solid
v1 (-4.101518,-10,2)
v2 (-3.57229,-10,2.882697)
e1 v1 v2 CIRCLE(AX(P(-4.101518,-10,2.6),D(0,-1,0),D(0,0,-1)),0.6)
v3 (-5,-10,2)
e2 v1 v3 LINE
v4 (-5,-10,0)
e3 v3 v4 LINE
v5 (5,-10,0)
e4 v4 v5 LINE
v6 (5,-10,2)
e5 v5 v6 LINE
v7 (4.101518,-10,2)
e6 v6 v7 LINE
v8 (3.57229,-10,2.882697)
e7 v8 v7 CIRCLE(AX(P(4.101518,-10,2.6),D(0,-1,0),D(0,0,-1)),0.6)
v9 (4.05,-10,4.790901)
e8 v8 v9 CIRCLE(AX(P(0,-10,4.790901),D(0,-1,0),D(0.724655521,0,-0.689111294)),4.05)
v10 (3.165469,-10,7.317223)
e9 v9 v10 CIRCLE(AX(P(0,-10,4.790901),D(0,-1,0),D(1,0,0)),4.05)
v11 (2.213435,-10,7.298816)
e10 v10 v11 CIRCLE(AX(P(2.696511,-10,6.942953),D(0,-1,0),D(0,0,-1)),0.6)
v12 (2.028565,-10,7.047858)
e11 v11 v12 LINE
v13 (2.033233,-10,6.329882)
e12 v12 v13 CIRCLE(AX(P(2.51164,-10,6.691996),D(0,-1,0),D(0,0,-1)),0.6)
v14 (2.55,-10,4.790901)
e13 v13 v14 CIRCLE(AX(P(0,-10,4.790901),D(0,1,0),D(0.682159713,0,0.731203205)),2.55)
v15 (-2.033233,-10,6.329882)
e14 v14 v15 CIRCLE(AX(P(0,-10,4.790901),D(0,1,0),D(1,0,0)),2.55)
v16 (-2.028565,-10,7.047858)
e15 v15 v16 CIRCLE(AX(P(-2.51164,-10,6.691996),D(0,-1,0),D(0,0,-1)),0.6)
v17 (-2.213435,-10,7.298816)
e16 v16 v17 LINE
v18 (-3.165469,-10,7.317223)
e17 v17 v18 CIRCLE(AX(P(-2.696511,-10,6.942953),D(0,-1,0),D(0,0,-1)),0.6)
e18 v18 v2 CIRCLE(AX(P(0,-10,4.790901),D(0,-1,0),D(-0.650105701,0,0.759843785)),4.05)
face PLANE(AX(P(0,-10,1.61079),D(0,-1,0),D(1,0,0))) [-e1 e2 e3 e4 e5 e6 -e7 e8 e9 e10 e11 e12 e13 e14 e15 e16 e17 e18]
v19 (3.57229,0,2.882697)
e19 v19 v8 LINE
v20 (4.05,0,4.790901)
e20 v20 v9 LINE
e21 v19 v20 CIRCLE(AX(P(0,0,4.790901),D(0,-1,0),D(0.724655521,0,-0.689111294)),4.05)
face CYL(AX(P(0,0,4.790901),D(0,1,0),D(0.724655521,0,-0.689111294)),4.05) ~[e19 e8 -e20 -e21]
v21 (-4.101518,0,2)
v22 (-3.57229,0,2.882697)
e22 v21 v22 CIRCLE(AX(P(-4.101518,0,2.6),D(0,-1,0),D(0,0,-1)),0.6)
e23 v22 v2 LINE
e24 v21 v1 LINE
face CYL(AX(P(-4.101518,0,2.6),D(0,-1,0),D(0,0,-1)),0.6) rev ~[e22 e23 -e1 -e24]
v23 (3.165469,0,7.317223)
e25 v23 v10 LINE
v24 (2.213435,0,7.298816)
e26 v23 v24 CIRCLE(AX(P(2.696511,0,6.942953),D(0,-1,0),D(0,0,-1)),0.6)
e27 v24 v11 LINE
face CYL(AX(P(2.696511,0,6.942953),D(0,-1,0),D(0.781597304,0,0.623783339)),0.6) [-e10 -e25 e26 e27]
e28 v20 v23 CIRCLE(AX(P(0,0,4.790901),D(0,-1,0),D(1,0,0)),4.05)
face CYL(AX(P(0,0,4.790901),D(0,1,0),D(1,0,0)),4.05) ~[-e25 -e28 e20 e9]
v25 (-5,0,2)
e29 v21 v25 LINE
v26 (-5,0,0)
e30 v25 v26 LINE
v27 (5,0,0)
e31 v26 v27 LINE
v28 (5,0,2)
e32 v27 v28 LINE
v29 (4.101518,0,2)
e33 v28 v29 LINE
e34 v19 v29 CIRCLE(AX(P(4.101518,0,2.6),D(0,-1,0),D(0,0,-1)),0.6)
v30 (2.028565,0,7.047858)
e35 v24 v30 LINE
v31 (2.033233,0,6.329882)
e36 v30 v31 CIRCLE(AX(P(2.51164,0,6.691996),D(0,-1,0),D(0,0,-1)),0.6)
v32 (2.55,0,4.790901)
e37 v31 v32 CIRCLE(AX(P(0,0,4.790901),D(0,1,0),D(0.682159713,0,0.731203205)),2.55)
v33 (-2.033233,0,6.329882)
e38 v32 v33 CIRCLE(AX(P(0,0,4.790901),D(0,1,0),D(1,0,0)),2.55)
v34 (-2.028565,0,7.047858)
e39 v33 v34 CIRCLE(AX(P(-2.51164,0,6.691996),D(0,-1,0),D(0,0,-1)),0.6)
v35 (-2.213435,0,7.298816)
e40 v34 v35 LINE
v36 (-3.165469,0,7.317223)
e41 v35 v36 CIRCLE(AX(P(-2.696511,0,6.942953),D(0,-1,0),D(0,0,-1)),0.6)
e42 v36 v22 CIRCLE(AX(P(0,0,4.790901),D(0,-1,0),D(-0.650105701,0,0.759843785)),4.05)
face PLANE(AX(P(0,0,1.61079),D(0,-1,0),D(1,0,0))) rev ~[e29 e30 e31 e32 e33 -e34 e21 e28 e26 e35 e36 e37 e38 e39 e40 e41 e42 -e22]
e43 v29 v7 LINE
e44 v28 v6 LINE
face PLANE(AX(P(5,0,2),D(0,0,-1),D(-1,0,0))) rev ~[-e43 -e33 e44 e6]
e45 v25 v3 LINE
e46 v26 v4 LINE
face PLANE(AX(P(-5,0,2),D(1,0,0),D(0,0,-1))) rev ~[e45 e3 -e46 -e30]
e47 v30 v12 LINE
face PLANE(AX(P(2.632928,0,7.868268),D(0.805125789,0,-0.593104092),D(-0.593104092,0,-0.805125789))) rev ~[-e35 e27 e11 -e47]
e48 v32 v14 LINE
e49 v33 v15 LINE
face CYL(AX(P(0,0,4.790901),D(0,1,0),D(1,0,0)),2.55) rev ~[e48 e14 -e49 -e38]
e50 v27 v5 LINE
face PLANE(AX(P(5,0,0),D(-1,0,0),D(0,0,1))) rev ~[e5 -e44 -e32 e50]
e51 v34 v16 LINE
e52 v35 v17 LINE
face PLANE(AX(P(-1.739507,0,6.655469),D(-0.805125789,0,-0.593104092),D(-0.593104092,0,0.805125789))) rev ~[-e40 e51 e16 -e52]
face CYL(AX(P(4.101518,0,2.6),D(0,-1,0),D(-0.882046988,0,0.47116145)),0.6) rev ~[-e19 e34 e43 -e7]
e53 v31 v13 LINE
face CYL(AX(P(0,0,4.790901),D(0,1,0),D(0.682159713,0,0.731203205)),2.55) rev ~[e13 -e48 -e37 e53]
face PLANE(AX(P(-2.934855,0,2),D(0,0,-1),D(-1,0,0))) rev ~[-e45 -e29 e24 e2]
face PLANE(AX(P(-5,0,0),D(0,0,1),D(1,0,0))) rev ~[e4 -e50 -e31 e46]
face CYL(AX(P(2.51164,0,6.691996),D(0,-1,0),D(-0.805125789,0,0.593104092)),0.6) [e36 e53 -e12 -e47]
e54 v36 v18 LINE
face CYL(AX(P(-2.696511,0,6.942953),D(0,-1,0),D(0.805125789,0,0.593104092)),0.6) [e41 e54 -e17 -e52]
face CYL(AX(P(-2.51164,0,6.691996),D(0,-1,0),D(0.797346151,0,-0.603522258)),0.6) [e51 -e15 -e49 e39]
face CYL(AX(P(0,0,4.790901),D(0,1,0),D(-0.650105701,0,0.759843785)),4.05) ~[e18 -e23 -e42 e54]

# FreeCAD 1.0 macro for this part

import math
import FreeCAD as App
import Part
import Sketcher

V = App.Vector


def edges_at(feature, points):
    """Names of the edges that pass closest to the given points."""
    edges = feature.Shape.Edges
    near = lambda p: min(range(len(edges)), key=lambda i: edges[i].distToShape(Part.Vertex(*p))[0])
    return sorted({f"Edge{near(p) + 1}" for p in points})

doc = App.newDocument("Part")
params = doc.addObject("Spreadsheet::Sheet", "Params")
for row, (alias, value) in enumerate([
    ("sketch1_width", "10 mm"),
    ("sketch1_height", "2 mm"),
    ("sketch1_radius", "4.05 mm"),
    ("sketch1_radius2", "2.55 mm"),
    ("pad1_length", "10 mm"),
    ("fillet_radius", "0.6 mm"),
    ("fillet2_radius", "0.6 mm"),
], start=1):
    params.set(f"A{row}", alias)
    params.set(f"B{row}", "=" + value)
    params.setAlias(f"B{row}", alias)

body = doc.addObject("PartDesign::Body", "Body")

sketch1 = body.newObject("Sketcher::SketchObject", "Sketch")
sketch1.AttachmentSupport = (doc.getObject("XZ_Plane"), [""])
sketch1.MapMode = "FlatFace"
sketch1.addGeometry(Part.LineSegment(V(-5, 2, 0), V(-5, 0, 0)), False)
sketch1.addGeometry(Part.LineSegment(V(-5, 0, 0), V(5, 0, 0)), False)
sketch1.addGeometry(Part.LineSegment(V(5, 0, 0), V(5, 2, 0)), False)
sketch1.addGeometry(Part.LineSegment(V(5, 2, 0), V(2.9, 2, 0)), False)
sketch1.addGeometry(Part.ArcOfCircle(Part.Circle(V(0, 4.8, 0), V(0, 0, 1), 4), math.radians(-44), math.radians(0)), False)
sketch1.addGeometry(Part.ArcOfCircle(Part.Circle(V(0, 4.8, 0), V(0, 0, 1), 4), math.radians(0), math.radians(49)), False)
sketch1.addGeometry(Part.LineSegment(V(2.6, 7.9, 0), V(1.7, 6.7, 0)), False)
sketch1.addGeometry(Part.ArcOfCircle(Part.Circle(V(0, 4.8, 0), V(0, 0, 1), 2.5), math.radians(0), math.radians(47)), False)
sketch1.addGeometry(Part.ArcOfCircle(Part.Circle(V(0, 4.8, 0), V(0, 0, 1), 2.5), math.radians(133), math.radians(360)), False)
sketch1.addGeometry(Part.LineSegment(V(-1.7, 6.7, 0), V(-2.6, 7.9, 0)), False)
sketch1.addGeometry(Part.ArcOfCircle(Part.Circle(V(0, 4.8, 0), V(0, 0, 1), 4), math.radians(131), math.radians(224)), False)
sketch1.addGeometry(Part.LineSegment(V(-2.9, 2, 0), V(-5, 2, 0)), False)
sketch1.addConstraint(Sketcher.Constraint("Coincident", 0, 2, 1, 1))
sketch1.addConstraint(Sketcher.Constraint("Coincident", 1, 2, 2, 1))
sketch1.addConstraint(Sketcher.Constraint("Coincident", 2, 2, 3, 1))
sketch1.addConstraint(Sketcher.Constraint("Coincident", 3, 2, 4, 1))
sketch1.addConstraint(Sketcher.Constraint("Tangent", 4, 2, 5, 1))
sketch1.addConstraint(Sketcher.Constraint("Coincident", 5, 2, 6, 1))
sketch1.addConstraint(Sketcher.Constraint("Coincident", 6, 2, 7, 2))
sketch1.addConstraint(Sketcher.Constraint("Tangent", 7, 1, 8, 2))
sketch1.addConstraint(Sketcher.Constraint("Coincident", 8, 1, 9, 1))
sketch1.addConstraint(Sketcher.Constraint("Coincident", 9, 2, 10, 1))
sketch1.addConstraint(Sketcher.Constraint("Coincident", 10, 2, 11, 1))
sketch1.addConstraint(Sketcher.Constraint("Coincident", 11, 2, 0, 1))
sketch1.addConstraint(Sketcher.Constraint("Vertical", 0))
sketch1.addConstraint(Sketcher.Constraint("Horizontal", 1))
sketch1.addConstraint(Sketcher.Constraint("Vertical", 2))
sketch1.addConstraint(Sketcher.Constraint("Horizontal", 3))
sketch1.addConstraint(Sketcher.Constraint("Horizontal", 11))
sketch1.addConstraint(Sketcher.Constraint("Coincident", 7, 3, 4, 3))
sketch1.addConstraint(Sketcher.Constraint("Coincident", 10, 3, 4, 3))
sketch1.addConstraint(Sketcher.Constraint("Equal", 4, 5))
sketch1.addConstraint(Sketcher.Constraint("Equal", 7, 8))
sketch1.addConstraint(Sketcher.Constraint("Equal", 5, 10))
sketch1.addConstraint(Sketcher.Constraint("Symmetric", 0, 2, 1, 2, -1, 1))
sketch1.addConstraint(Sketcher.Constraint("Symmetric", 6, 2, 8, 1, -2))
sketch1.addConstraint(Sketcher.Constraint("Horizontal", 10, 3, 4, 2))
sketch1.addConstraint(Sketcher.Constraint("Horizontal", 4, 2, 7, 1))
sketch1.addConstraint(Sketcher.Constraint("Horizontal", 5, 2, 9, 2))
sketch1.addConstraint(Sketcher.Constraint("Horizontal", 3, 2, 10, 2))
sketch1.addConstraint(Sketcher.Constraint("DistanceX", 1, 1, 1, 2, 10.0))
sketch1.addConstraint(Sketcher.Constraint("DistanceY", 0, 2, 0, 1, 2.0))
sketch1.addConstraint(Sketcher.Constraint("Radius", 4, 4.05))
sketch1.addConstraint(Sketcher.Constraint("Radius", 7, 2.55))
sketch1.addConstraint(Sketcher.Constraint("DistanceY", -1, 1, 4, 3, 4.790901))
sketch1.addConstraint(Sketcher.Constraint("DistanceY", 6, 2, 5, 2, 1.212799))
sketch1.addConstraint(Sketcher.Constraint("DistanceX", -1, 1, 5, 2, 2.632928))
sketch1.setExpression("Constraints[28]", "Params.sketch1_width")
sketch1.setExpression("Constraints[29]", "Params.sketch1_height")
sketch1.setExpression("Constraints[30]", "Params.sketch1_radius")
sketch1.setExpression("Constraints[31]", "Params.sketch1_radius2")
pad1 = body.newObject("PartDesign::Pad", "Pad")
pad1.Profile = sketch1
pad1.setExpression("Length", "Params.pad1_length")
doc.recompute()

fillet = body.newObject("PartDesign::Fillet", "Fillet")
fillet.Base = (pad1, edges_at(pad1, [
    (1.74, -5, 6.655),
    (-1.74, -5, 6.655),
    (-2.633, -5, 7.868),
    (2.633, -5, 7.868),
]))
fillet.setExpression("Radius", "Params.fillet_radius")
doc.recompute()

fillet2 = body.newObject("PartDesign::Fillet", "Fillet001")
fillet2.Base = (fillet, edges_at(fillet, [(2.935, -5, 2), (-2.935, -5, 2)]))
fillet2.setExpression("Radius", "Params.fillet2_radius")

doc.recompute()
